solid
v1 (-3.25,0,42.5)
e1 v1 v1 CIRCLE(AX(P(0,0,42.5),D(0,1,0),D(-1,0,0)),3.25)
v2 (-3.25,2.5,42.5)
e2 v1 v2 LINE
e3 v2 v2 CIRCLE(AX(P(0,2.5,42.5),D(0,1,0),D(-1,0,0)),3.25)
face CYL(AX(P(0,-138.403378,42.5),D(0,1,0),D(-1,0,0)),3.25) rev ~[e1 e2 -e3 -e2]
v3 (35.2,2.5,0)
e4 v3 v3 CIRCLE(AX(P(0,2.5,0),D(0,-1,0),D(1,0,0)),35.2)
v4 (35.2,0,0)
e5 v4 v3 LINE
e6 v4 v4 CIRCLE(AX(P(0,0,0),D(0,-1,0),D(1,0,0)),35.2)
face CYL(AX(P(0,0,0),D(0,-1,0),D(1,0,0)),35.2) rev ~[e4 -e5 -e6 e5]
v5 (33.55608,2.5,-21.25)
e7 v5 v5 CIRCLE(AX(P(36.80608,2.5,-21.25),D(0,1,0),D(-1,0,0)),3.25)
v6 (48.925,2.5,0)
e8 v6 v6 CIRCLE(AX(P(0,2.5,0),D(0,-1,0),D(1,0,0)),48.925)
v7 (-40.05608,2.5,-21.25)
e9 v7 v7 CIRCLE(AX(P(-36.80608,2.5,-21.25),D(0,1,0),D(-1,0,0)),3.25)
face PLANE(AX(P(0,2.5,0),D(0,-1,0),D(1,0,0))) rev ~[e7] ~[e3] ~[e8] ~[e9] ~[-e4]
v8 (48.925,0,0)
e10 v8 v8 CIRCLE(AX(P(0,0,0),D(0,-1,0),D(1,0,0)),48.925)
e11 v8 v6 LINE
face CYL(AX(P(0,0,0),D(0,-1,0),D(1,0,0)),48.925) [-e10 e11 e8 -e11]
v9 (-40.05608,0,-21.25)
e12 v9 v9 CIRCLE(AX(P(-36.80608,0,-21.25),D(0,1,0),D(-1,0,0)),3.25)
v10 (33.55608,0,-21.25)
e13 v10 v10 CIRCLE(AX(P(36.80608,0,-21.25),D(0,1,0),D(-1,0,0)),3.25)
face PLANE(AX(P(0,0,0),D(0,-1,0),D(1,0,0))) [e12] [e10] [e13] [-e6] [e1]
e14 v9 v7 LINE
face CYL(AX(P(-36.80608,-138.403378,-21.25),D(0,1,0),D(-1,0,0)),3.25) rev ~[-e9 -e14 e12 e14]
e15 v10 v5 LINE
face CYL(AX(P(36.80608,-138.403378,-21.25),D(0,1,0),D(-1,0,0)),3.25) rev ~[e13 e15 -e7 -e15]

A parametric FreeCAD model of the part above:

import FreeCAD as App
import Part
import Sketcher

V = App.Vector

doc = App.newDocument("Part")
params = doc.addObject("Spreadsheet::Sheet", "Params")
for row, (alias, value) in enumerate([
    ("sketch1_diameter", "70.4 mm"),
    ("sketch1_diameter2", "97.85 mm"),
    ("pad1_length", "2.5 mm"),
    ("sketch2_diameter", "6.5 mm"),
    ("hole_diameter", "6.5 mm"),
], start=1):
    params.set(f"A{row}", alias)
    params.set(f"B{row}", "=" + value)
    params.setAlias(f"B{row}", alias)

body = doc.addObject("PartDesign::Body", "Body")

# Sketch on XZ plane
sketch1 = body.newObject("Sketcher::SketchObject", "Sketch")
sketch1.AttachmentSupport = (doc.getObject("XZ_Plane"), [""])
sketch1.MapMode = "FlatFace"
sketch1.addGeometry([
    Part.Circle(V(0, 0, 0), V(0, 0, 1), 49),
    Part.Circle(V(0, 0, 0), V(0, 0, 1), 35),
], False)
sketch1.addConstraint([
    Sketcher.Constraint("Coincident", 0, 3, -1, 1),
    Sketcher.Constraint("Coincident", 1, 3, -1, 1),
    Sketcher.Constraint("Diameter", 1, 70.4),
    Sketcher.Constraint("Diameter", 0, 97.85),
])
sketch1.setExpression("Constraints[2]", "Params.sketch1_diameter")
sketch1.setExpression("Constraints[3]", "Params.sketch1_diameter2")
pad1 = body.newObject("PartDesign::Pad", "Pad")
pad1.Profile = sketch1
pad1.setExpression("Length", "Params.pad1_length")
pad1.Reversed = True

# Sketch on XZ plane
sketch2 = body.newObject("Sketcher::SketchObject", "Sketch001")
sketch2.AttachmentSupport = (doc.getObject("XZ_Plane"), [""])
sketch2.MapMode = "FlatFace"
sketch2.addGeometry([
    Part.Circle(V(0, 42.5, 0), V(0, 0, 1), 3.2),
    Part.Circle(V(-36.8, -21.2, 0), V(0, 0, 1), 3.2),
    Part.Circle(V(36.8, -21.2, 0), V(0, 0, 1), 3.2),
], False)
sketch2.addConstraint([
    Sketcher.Constraint("Equal", 0, 1),
    Sketcher.Constraint("Equal", 1, 2),
    Sketcher.Constraint("Symmetric", 1, 3, 2, 3, -2),
    Sketcher.Constraint("PointOnObject", 0, 3, -2),
    Sketcher.Constraint("Diameter", 0, 6.5),
    Sketcher.Constraint("DistanceY", -1, 1, 0, 3, 42.5),
    Sketcher.Constraint("DistanceY", 1, 3, -1, 1, 21.25),
    Sketcher.Constraint("DistanceX", 1, 3, -1, 1, 36.80608),
])
sketch2.setExpression("Constraints[4]", "Params.sketch2_diameter")
doc.recompute()
hole = body.newObject("PartDesign::Hole", "Hole")
hole.Profile = sketch2
hole.ThreadType = "None"
hole.setExpression("Diameter", "Params.hole_diameter")
hole.DepthType = "ThroughAll"

doc.recompute()
